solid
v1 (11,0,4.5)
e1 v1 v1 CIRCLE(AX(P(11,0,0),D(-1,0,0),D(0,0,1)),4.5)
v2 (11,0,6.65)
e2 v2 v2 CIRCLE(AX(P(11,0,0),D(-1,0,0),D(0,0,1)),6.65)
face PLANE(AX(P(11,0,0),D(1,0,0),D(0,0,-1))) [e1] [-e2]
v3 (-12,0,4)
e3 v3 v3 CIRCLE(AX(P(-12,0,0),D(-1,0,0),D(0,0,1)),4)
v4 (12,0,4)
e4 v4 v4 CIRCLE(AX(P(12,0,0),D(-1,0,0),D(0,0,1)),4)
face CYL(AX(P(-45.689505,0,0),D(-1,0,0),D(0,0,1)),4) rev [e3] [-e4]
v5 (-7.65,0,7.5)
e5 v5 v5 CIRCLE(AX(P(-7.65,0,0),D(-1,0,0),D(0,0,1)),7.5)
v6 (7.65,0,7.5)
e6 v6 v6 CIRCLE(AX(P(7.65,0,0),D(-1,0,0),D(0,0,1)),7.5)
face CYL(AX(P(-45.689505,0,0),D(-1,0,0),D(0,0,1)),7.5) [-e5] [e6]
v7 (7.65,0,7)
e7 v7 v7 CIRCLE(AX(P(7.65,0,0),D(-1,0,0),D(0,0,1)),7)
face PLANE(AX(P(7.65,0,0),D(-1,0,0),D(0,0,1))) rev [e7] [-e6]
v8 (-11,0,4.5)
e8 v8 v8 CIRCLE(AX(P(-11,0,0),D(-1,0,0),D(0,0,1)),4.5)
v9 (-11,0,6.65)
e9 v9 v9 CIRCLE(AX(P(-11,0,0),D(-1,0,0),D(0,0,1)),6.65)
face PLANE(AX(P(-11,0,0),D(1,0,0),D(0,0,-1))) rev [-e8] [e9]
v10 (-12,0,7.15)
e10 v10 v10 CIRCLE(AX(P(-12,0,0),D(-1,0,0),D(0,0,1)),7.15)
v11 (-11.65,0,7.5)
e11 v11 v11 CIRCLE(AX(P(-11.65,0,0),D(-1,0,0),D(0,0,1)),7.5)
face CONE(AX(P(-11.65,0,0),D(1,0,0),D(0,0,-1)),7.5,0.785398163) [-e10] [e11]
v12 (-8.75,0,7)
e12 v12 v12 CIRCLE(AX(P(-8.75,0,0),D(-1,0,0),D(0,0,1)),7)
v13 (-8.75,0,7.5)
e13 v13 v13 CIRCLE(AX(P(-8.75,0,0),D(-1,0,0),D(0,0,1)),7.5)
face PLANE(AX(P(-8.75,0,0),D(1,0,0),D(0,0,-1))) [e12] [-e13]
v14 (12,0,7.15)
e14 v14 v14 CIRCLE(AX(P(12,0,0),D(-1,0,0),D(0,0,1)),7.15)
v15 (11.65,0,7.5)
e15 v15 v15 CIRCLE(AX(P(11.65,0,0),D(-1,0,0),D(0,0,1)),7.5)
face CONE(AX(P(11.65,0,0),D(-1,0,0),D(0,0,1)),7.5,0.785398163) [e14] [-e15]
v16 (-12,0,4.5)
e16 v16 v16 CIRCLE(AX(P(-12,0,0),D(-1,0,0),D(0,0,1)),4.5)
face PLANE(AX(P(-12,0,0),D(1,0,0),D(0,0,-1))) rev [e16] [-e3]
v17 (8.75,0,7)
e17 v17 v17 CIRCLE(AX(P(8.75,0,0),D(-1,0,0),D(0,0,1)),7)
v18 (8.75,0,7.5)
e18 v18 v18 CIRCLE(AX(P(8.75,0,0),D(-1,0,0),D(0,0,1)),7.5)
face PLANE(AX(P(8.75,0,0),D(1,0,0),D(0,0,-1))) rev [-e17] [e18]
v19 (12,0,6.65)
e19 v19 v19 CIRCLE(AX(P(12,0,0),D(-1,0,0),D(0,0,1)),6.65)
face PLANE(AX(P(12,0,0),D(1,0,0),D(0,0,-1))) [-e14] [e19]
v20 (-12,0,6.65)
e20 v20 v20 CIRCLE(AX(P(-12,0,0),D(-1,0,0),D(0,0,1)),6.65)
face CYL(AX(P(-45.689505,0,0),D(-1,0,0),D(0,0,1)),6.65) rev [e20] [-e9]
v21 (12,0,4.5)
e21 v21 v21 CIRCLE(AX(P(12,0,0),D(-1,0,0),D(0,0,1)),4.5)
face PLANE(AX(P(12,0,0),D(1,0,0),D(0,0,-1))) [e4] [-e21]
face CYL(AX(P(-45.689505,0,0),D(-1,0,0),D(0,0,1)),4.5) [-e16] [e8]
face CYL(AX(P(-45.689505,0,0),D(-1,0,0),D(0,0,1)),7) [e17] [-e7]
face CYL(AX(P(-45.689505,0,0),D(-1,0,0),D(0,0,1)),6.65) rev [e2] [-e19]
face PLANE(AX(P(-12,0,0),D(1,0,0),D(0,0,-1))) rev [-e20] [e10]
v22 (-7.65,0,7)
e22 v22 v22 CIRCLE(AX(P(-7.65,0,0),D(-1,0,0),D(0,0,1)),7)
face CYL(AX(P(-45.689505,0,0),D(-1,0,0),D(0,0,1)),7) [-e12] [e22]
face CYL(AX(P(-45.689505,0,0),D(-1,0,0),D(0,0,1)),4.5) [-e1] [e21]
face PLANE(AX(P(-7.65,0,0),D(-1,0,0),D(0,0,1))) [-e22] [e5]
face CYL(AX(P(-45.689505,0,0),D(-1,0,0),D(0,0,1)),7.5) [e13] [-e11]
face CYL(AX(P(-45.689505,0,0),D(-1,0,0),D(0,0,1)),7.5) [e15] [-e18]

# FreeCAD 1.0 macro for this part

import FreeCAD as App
import Part
import Sketcher
from FreeCAD import Vector


def add_polygon(sketch, points):
    """Adds a closed chain of lines whose ends are joined by coincident constraints."""
    first, n = sketch.GeometryCount, len(points)
    for a, b in zip(points, points[1:] + points[:1]):
        sketch.addGeometry(Part.LineSegment(App.Vector(*a, 0), App.Vector(*b, 0)), False)
    for i in range(n):
        sketch.addConstraint(Sketcher.Constraint("Coincident", first + i, 2, first + (i + 1) % n, 1))

doc = App.newDocument("Part")
body = doc.addObject("PartDesign::Body", "Body")

# Sketch on XY plane
sketch1 = body.newObject("Sketcher::SketchObject", "Sketch")
sketch1.AttachmentSupport = (doc.getObject("XY_Plane"), [""])
sketch1.MapMode = "FlatFace"
add_polygon(sketch1, [(12, 7.15), (11.65, 7.5), (8.75, 7.5), (8.75, 7), (7.65, 7), (7.65, 7.5), (-7.65, 7.5), (-7.65, 7), (-8.75, 7), (-8.75, 7.5), (-11.65, 7.5), (-12, 7.15), (-12, 6.65), (-11, 6.65), (-11, 4.5), (-12, 4.5), (-12, 4), (12, 4), (12, 4.5), (11, 4.5), (11, 6.65), (12, 6.65)])  # lines 0-21
sketch1.addConstraint([
    Sketcher.Constraint("Horizontal", 1),
    Sketcher.Constraint("Vertical", 2),
    Sketcher.Constraint("Horizontal", 3),
    Sketcher.Constraint("Vertical", 4),
    Sketcher.Constraint("Horizontal", 5),
    Sketcher.Constraint("Vertical", 6),
    Sketcher.Constraint("Horizontal", 7),
    Sketcher.Constraint("Vertical", 8),
    Sketcher.Constraint("Horizontal", 9),
    Sketcher.Constraint("Vertical", 11),
    Sketcher.Constraint("Horizontal", 12),
    Sketcher.Constraint("Vertical", 13),
    Sketcher.Constraint("Horizontal", 14),
    Sketcher.Constraint("Vertical", 15),
    Sketcher.Constraint("Horizontal", 16),
    Sketcher.Constraint("Vertical", 17),
    Sketcher.Constraint("Horizontal", 18),
    Sketcher.Constraint("Vertical", 19),
    Sketcher.Constraint("Horizontal", 20),
    Sketcher.Constraint("Vertical", 21),
    Sketcher.Constraint("Symmetric", 3, 2, 6, 2, -2),
    Sketcher.Constraint("Symmetric", 1, 2, 8, 2, -2),
    Sketcher.Constraint("Symmetric", 14, 2, 17, 2, -2),
    Sketcher.Constraint("Symmetric", 12, 2, 19, 2, -2),
    Sketcher.Constraint("Symmetric", 10, 2, 21, 2, -2),
    Sketcher.Constraint("Perpendicular", 0, 10),
    Sketcher.Constraint("Horizontal", 1, 2, 4, 2),
    Sketcher.Constraint("Vertical", 11, 2, 14, 2),
    Sketcher.Constraint("Equal", 1, 9),
    Sketcher.Constraint("Equal", 8, 11),
    Sketcher.Constraint("Equal", 11, 15),
    Sketcher.Constraint("DistanceX", 12, 1, 12, 2, 1.0),
    Sketcher.Constraint("DistanceX", 16, 1, 16, 2, 24.0),
    Sketcher.Constraint("DistanceX", 1, 2, 1, 1, 2.9),
    Sketcher.Constraint("DistanceX", 3, 2, 3, 1, 1.1),
    Sketcher.Constraint("DistanceX", 5, 2, 5, 1, 15.3),
    Sketcher.Constraint("DistanceY", 2, 2, 2, 1, 0.5),
    Sketcher.Constraint("DistanceY", -1, 1, 2, 2, 7.0),
    Sketcher.Constraint("DistanceY", -1, 1, 15, 2, 4.0),
])
revolution = body.newObject("PartDesign::Revolution", "Revolution")
revolution.Profile = sketch1
revolution.ReferenceAxis = (sketch1, ["H_Axis"])
revolution.Angle = 360

doc.recompute()
